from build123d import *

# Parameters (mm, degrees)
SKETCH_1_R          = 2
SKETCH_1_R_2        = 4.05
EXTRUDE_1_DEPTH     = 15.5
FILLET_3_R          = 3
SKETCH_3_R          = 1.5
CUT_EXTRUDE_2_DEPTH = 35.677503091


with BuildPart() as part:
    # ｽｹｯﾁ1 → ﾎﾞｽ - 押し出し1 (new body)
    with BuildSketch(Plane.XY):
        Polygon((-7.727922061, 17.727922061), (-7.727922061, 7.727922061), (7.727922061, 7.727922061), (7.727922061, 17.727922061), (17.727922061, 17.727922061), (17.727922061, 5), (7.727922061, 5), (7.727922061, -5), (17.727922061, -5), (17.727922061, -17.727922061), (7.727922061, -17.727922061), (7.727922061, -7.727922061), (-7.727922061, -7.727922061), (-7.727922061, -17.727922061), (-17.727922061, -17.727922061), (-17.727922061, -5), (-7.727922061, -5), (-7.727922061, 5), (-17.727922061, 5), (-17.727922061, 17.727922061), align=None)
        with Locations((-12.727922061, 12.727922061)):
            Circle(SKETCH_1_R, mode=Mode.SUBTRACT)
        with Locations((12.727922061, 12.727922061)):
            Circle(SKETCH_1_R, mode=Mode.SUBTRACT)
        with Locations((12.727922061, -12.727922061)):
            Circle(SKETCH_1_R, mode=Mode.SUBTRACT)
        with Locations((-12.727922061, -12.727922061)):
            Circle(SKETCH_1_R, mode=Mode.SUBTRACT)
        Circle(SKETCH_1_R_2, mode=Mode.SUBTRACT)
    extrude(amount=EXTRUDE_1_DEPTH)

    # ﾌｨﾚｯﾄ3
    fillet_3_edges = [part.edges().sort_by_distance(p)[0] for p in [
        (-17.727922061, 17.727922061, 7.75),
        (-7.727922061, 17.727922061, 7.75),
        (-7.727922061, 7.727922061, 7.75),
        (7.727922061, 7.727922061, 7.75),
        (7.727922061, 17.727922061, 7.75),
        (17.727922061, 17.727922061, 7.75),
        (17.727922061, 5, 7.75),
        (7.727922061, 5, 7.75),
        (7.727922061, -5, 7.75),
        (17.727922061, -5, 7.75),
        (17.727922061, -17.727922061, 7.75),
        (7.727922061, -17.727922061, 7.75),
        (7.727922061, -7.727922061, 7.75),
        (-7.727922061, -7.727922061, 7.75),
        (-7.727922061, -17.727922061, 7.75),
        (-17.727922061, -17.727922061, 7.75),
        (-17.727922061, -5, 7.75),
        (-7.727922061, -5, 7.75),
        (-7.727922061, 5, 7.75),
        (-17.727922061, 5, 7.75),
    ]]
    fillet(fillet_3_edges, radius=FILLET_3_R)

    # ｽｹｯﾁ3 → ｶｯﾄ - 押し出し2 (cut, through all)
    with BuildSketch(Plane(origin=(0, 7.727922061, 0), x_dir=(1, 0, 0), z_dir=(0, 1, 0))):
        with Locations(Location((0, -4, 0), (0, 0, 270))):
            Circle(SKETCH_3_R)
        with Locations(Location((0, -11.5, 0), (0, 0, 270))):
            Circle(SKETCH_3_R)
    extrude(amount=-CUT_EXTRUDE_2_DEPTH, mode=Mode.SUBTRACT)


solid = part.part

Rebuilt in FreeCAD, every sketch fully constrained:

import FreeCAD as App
import Part
import Sketcher
Q = App.Units.Quantity


def edges_at(feature, points):
    """Names of the edges that pass closest to the given points."""
    edges = feature.Shape.Edges
    near = lambda p: min(range(len(edges)), key=lambda i: edges[i].distToShape(Part.Vertex(*p))[0])
    return sorted({f"Edge{near(p) + 1}" for p in points})

doc = App.newDocument("Part")
body = doc.addObject("PartDesign::Body", "Body")

# Sketch on XY plane
sketch1 = body.newObject("Sketcher::SketchObject", "Sketch")
sketch1.AttachmentSupport = (doc.getObject("XY_Plane"), [""])
sketch1.MapMode = "FlatFace"
sketch1.addGeometry([
    Part.LineSegment(App.Vector(-7.7, 7.7, 0), App.Vector(-7.7, 17.7, 0)),  # 0
    Part.LineSegment(App.Vector(-7.7, 17.7, 0), App.Vector(-17.7, 17.7, 0)),  # 1
    Part.LineSegment(App.Vector(-17.7, 17.7, 0), App.Vector(-17.7, 5, 0)),  # 2
    Part.LineSegment(App.Vector(-17.7, 5, 0), App.Vector(-7.7, 5, 0)),  # 3
    Part.LineSegment(App.Vector(-7.7, 5, 0), App.Vector(-7.7, -5, 0)),  # 4
    Part.LineSegment(App.Vector(-7.7, -5, 0), App.Vector(-17.7, -5, 0)),  # 5
    Part.LineSegment(App.Vector(-17.7, -5, 0), App.Vector(-17.7, -17.7, 0)),  # 6
    Part.LineSegment(App.Vector(-17.7, -17.7, 0), App.Vector(-7.7, -17.7, 0)),  # 7
    Part.LineSegment(App.Vector(-7.7, -17.7, 0), App.Vector(-7.7, -7.7, 0)),  # 8
    Part.LineSegment(App.Vector(-7.7, -7.7, 0), App.Vector(7.7, -7.7, 0)),  # 9
    Part.LineSegment(App.Vector(7.7, -7.7, 0), App.Vector(7.7, -17.7, 0)),  # 10
    Part.LineSegment(App.Vector(7.7, -17.7, 0), App.Vector(17.7, -17.7, 0)),  # 11
    Part.LineSegment(App.Vector(17.7, -17.7, 0), App.Vector(17.7, -5, 0)),  # 12
    Part.LineSegment(App.Vector(17.7, -5, 0), App.Vector(7.7, -5, 0)),  # 13
    Part.LineSegment(App.Vector(7.7, -5, 0), App.Vector(7.7, 5, 0)),  # 14
    Part.LineSegment(App.Vector(7.7, 5, 0), App.Vector(17.7, 5, 0)),  # 15
    Part.LineSegment(App.Vector(17.7, 5, 0), App.Vector(17.7, 17.7, 0)),  # 16
    Part.LineSegment(App.Vector(17.7, 17.7, 0), App.Vector(7.7, 17.7, 0)),  # 17
    Part.LineSegment(App.Vector(7.7, 17.7, 0), App.Vector(7.7, 7.7, 0)),  # 18
    Part.LineSegment(App.Vector(7.7, 7.7, 0), App.Vector(-7.7, 7.7, 0)),  # 19
    Part.Circle(App.Vector(12.7, -12.7, 0), App.Vector(0, 0, 1), 2),  # 20
    Part.Circle(App.Vector(-12.7, -12.7, 0), App.Vector(0, 0, 1), 2),  # 21
    Part.Circle(App.Vector(12.7, 12.7, 0), App.Vector(0, 0, 1), 2),  # 22
    Part.Circle(App.Vector(0, 0, 0), App.Vector(0, 0, 1), 4),  # 23
    Part.Circle(App.Vector(-12.7, 12.7, 0), App.Vector(0, 0, 1), 2),  # 24
], False)
sketch1.addConstraint([
    Sketcher.Constraint("Coincident", 0, 2, 1, 1),
    Sketcher.Constraint("Coincident", 1, 2, 2, 1),
    Sketcher.Constraint("Coincident", 2, 2, 3, 1),
    Sketcher.Constraint("Coincident", 3, 2, 4, 1),
    Sketcher.Constraint("Coincident", 4, 2, 5, 1),
    Sketcher.Constraint("Coincident", 5, 2, 6, 1),
    Sketcher.Constraint("Coincident", 6, 2, 7, 1),
    Sketcher.Constraint("Coincident", 7, 2, 8, 1),
    Sketcher.Constraint("Coincident", 8, 2, 9, 1),
    Sketcher.Constraint("Coincident", 9, 2, 10, 1),
    Sketcher.Constraint("Coincident", 10, 2, 11, 1),
    Sketcher.Constraint("Coincident", 11, 2, 12, 1),
    Sketcher.Constraint("Coincident", 12, 2, 13, 1),
    Sketcher.Constraint("Coincident", 13, 2, 14, 1),
    Sketcher.Constraint("Coincident", 14, 2, 15, 1),
    Sketcher.Constraint("Coincident", 15, 2, 16, 1),
    Sketcher.Constraint("Coincident", 16, 2, 17, 1),
    Sketcher.Constraint("Coincident", 17, 2, 18, 1),
    Sketcher.Constraint("Coincident", 18, 2, 19, 1),
    Sketcher.Constraint("Coincident", 19, 2, 0, 1),
    Sketcher.Constraint("Vertical", 0),
    Sketcher.Constraint("Horizontal", 1),
    Sketcher.Constraint("Vertical", 2),
    Sketcher.Constraint("Horizontal", 3),
    Sketcher.Constraint("Vertical", 4),
    Sketcher.Constraint("Horizontal", 5),
    Sketcher.Constraint("Vertical", 6),
    Sketcher.Constraint("Horizontal", 7),
    Sketcher.Constraint("Vertical", 8),
    Sketcher.Constraint("Horizontal", 9),
    Sketcher.Constraint("Vertical", 10),
    Sketcher.Constraint("Horizontal", 11),
    Sketcher.Constraint("Vertical", 12),
    Sketcher.Constraint("Horizontal", 13),
    Sketcher.Constraint("Vertical", 14),
    Sketcher.Constraint("Horizontal", 15),
    Sketcher.Constraint("Vertical", 16),
    Sketcher.Constraint("Horizontal", 17),
    Sketcher.Constraint("Vertical", 18),
    Sketcher.Constraint("Horizontal", 19),
    Sketcher.Constraint("Coincident", 23, 3, -1, 1),
    Sketcher.Constraint("Equal", 20, 21),
    Sketcher.Constraint("Equal", 21, 22),
    Sketcher.Constraint("Equal", 22, 24),
    Sketcher.Constraint("Symmetric", 21, 3, 22, 3, -1, 1),
    Sketcher.Constraint("Symmetric", 20, 3, 24, 3, -1, 1),
    Sketcher.Constraint("Symmetric", 0, 2, 10, 2, -1, 1),
    Sketcher.Constraint("Symmetric", 2, 2, 12, 2, -1, 1),
    Sketcher.Constraint("Symmetric", 4, 2, 14, 2, -1, 1),
    Sketcher.Constraint("Symmetric", 6, 2, 16, 2, -1, 1),
    Sketcher.Constraint("Symmetric", 8, 2, 18, 2, -1, 1),
    Sketcher.Constraint("Symmetric", 20, 3, 21, 3, -2),
    Sketcher.Constraint("Symmetric", 7, 2, 10, 2, -2),
    Sketcher.Constraint("Symmetric", 5, 2, 12, 2, -2),
    Sketcher.Constraint("Vertical", 0, 2, 3, 2),
    Sketcher.Constraint("Equal", 17, 0),
    Sketcher.Constraint("Equal", 0, 4),
    Sketcher.Constraint("Diameter", 20, Q("4 mm")),
    Sketcher.Constraint("Diameter", 23, Q("8.1 mm")),
    Sketcher.Constraint("DistanceX", 1, 2, 1, 1, Q("10 mm")),
    Sketcher.Constraint("DistanceX", 24, 3, 0, 2, Q("5 mm")),
    Sketcher.Constraint("DistanceY", 24, 3, 0, 2, Q("5 mm")),
    Sketcher.Constraint("DistanceX", 9, 1, 9, 2, Q("15.455844 mm")),
    Sketcher.Constraint("DistanceY", 2, 2, 2, 1, Q("12.727922 mm")),
])
pad1 = body.newObject("PartDesign::Pad", "Pad")
pad1.Profile = sketch1
pad1.Length = 15.5
doc.recompute()

fillet = body.newObject("PartDesign::Fillet", "Fillet")
fillet.Base = (pad1, edges_at(pad1, [
    (-17.728, 17.728, 7.75),
    (-7.728, 17.728, 7.75),
    (-7.728, 7.728, 7.75),
    (7.728, 7.728, 7.75),
    (7.728, 17.728, 7.75),
    (17.728, 17.728, 7.75),
    (17.728, 5, 7.75),
    (7.728, 5, 7.75),
    (7.728, -5, 7.75),
    (17.728, -5, 7.75),
    (17.728, -17.728, 7.75),
    (7.728, -17.728, 7.75),
    (7.728, -7.728, 7.75),
    (-7.728, -7.728, 7.75),
    (-7.728, -17.728, 7.75),
    (-17.728, -17.728, 7.75),
    (-17.728, -5, 7.75),
    (-7.728, -5, 7.75),
    (-7.728, 5, 7.75),
    (-17.728, 5, 7.75),
]))
fillet.Radius = 3

# Sketch on XZ plane
sketch2 = body.newObject("Sketcher::SketchObject", "Sketch001")
sketch2.AttachmentSupport = (doc.getObject("XZ_Plane"), [""])
sketch2.MapMode = "FlatFace"
sketch2.AttachmentOffset = App.Placement(App.Vector(0, 0, -7.727922), App.Rotation())
sketch2.addGeometry([
    Part.Circle(App.Vector(0, 4, 0), App.Vector(0, 0, 1), 1.5),
    Part.Circle(App.Vector(0, 11.5, 0), App.Vector(0, 0, 1), 1.5),
], False)
sketch2.addConstraint([
    Sketcher.Constraint("Equal", 0, 1),
    Sketcher.Constraint("PointOnObject", 0, 3, -2),
    Sketcher.Constraint("PointOnObject", 1, 3, -2),
    Sketcher.Constraint("Diameter", 0, Q("3 mm")),
    Sketcher.Constraint("DistanceY", -1, 1, 0, 3, Q("4 mm")),
    Sketcher.Constraint("DistanceY", -1, 1, 1, 3, Q("11.5 mm")),
])
pocket1 = body.newObject("PartDesign::Pocket", "Pocket")
pocket1.Profile = sketch2
pocket1.Type = "ThroughAll"
pocket1.Reversed = True

doc.recompute()
